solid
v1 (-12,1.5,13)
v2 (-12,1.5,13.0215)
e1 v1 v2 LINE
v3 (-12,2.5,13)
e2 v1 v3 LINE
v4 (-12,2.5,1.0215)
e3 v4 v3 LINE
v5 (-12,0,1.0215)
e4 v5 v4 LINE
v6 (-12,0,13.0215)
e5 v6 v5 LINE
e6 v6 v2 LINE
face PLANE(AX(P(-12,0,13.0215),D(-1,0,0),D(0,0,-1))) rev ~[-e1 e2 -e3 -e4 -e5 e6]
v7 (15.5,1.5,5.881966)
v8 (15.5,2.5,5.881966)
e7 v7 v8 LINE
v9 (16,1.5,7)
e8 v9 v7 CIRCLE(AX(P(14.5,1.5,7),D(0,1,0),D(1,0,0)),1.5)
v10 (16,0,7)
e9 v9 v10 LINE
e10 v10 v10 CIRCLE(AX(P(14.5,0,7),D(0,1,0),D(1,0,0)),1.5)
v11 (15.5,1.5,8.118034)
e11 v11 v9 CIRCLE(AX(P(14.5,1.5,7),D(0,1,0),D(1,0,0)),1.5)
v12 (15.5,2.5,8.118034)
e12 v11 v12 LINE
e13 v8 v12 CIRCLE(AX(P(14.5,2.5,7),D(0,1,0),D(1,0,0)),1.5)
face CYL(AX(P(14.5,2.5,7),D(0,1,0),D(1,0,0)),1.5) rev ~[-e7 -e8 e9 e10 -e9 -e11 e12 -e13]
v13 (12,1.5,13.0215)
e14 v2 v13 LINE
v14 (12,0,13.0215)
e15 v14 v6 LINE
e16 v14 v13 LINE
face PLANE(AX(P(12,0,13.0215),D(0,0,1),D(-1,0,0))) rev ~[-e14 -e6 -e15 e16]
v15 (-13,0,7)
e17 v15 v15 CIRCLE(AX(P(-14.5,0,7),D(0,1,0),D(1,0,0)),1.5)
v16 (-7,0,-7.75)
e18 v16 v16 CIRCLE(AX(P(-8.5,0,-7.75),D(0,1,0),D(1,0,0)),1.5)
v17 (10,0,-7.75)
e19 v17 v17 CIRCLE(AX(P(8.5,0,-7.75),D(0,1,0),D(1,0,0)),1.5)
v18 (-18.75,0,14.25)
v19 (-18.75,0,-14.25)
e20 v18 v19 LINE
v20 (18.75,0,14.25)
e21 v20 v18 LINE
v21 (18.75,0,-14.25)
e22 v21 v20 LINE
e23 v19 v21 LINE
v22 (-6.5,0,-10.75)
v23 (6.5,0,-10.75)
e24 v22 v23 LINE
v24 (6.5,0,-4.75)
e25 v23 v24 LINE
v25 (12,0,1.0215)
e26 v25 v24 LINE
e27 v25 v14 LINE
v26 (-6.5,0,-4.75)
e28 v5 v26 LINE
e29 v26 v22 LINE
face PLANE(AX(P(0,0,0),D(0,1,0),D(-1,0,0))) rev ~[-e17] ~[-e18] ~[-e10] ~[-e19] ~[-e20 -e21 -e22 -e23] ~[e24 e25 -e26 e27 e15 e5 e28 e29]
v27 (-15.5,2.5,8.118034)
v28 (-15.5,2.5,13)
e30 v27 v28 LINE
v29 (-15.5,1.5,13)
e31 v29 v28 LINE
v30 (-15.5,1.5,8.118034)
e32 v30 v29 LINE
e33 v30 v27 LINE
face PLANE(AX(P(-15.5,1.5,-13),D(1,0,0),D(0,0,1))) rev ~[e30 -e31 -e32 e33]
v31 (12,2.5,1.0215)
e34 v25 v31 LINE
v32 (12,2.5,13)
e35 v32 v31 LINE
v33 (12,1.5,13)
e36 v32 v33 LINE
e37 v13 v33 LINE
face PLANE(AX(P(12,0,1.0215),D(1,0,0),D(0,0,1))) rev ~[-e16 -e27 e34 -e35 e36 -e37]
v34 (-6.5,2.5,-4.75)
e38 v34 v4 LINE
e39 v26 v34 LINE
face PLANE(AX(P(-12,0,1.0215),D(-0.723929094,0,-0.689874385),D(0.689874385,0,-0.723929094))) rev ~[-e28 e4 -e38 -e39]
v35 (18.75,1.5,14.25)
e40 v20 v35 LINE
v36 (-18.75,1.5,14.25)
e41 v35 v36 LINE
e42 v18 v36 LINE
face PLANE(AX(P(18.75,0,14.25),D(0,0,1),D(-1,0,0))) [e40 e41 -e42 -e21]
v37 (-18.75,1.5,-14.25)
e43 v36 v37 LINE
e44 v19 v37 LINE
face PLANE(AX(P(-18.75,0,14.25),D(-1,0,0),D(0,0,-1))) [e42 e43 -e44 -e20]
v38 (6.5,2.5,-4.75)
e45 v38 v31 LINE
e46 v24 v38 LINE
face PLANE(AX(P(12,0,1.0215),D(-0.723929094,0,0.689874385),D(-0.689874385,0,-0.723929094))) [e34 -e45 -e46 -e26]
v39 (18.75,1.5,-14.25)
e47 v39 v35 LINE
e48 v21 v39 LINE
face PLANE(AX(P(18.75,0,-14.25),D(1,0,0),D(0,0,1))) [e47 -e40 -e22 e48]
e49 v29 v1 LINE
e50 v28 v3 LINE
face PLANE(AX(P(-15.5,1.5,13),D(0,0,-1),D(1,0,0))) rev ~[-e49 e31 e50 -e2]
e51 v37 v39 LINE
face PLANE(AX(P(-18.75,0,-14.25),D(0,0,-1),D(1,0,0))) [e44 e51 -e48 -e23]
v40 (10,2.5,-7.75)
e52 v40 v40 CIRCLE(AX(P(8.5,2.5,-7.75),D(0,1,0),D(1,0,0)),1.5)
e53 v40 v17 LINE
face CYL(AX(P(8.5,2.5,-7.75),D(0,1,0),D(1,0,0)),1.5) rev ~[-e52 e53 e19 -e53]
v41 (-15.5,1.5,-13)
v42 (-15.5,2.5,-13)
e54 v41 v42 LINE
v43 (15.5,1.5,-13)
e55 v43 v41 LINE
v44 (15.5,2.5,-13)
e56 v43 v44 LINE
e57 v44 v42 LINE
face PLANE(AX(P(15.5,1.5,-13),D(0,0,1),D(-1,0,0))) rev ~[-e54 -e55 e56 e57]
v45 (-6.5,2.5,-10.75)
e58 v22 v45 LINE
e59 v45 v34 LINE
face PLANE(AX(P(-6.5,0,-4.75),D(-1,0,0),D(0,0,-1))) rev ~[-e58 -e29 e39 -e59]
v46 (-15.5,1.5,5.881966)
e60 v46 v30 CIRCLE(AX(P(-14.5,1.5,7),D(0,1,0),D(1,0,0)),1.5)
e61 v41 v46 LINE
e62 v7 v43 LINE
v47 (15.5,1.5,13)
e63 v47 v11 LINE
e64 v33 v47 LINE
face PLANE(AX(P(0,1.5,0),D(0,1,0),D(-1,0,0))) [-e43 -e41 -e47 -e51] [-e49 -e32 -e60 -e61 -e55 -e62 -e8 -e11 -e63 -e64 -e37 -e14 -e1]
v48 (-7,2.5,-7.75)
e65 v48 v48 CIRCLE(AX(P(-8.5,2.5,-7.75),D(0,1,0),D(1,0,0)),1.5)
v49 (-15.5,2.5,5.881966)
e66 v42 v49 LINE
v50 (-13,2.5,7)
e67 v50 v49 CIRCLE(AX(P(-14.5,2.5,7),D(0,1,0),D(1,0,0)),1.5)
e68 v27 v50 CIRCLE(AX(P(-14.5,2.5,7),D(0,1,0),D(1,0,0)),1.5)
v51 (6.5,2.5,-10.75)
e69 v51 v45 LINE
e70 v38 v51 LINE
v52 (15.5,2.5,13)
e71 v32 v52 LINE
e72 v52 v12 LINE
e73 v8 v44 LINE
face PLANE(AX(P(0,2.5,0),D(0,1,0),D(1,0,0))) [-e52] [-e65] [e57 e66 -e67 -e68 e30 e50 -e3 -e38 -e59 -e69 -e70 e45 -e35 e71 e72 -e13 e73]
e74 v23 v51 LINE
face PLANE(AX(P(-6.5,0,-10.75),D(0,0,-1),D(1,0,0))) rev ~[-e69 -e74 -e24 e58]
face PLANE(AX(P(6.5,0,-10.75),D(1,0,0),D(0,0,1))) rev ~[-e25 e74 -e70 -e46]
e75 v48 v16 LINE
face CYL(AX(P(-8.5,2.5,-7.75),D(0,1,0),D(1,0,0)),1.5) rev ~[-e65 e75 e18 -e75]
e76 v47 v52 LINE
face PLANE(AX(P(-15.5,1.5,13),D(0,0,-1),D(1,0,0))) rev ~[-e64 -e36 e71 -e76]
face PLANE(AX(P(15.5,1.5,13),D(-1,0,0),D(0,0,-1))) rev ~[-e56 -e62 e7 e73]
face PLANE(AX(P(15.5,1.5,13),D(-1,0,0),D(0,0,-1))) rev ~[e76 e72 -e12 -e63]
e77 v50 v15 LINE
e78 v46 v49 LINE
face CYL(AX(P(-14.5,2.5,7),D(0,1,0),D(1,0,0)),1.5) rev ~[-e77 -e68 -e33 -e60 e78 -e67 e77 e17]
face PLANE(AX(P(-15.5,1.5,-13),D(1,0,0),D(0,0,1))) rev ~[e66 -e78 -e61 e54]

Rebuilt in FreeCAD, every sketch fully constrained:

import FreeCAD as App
import Part
import Sketcher

V = App.Vector
Q = App.Units.Quantity

doc = App.newDocument("Part")
body = doc.addObject("PartDesign::Body", "Body")

# Sketch on XZ plane
sketch1 = doc.addObject("Sketcher::SketchObject", "Sketch")
body.addObject(sketch1)
sketch1.AttachmentSupport = (doc.XZ_Plane, [""])
sketch1.MapMode = "FlatFace"
sketch1.addGeometry(Part.LineSegment(V(19, -14, 0), V(-19, -14, 0)), False)
sketch1.addGeometry(Part.LineSegment(V(-19, -14, 0), V(-19, 14, 0)), False)
sketch1.addGeometry(Part.LineSegment(V(-19, 14, 0), V(19, 14, 0)), False)
sketch1.addGeometry(Part.LineSegment(V(19, 14, 0), V(19, -14, 0)), False)
sketch1.addConstraint(Sketcher.Constraint("Coincident", 0, 2, 1, 1))
sketch1.addConstraint(Sketcher.Constraint("Coincident", 1, 2, 2, 1))
sketch1.addConstraint(Sketcher.Constraint("Coincident", 2, 2, 3, 1))
sketch1.addConstraint(Sketcher.Constraint("Coincident", 3, 2, 0, 1))
sketch1.addConstraint(Sketcher.Constraint("Horizontal", 0))
sketch1.addConstraint(Sketcher.Constraint("Vertical", 1))
sketch1.addConstraint(Sketcher.Constraint("Horizontal", 2))
sketch1.addConstraint(Sketcher.Constraint("Vertical", 3))
sketch1.addConstraint(Sketcher.Constraint("Symmetric", 0, 2, 2, 2, -1, 1))
sketch1.addConstraint(Sketcher.Constraint("DistanceX", 0, 2, 0, 1, Q("37.5 mm")))
sketch1.addConstraint(Sketcher.Constraint("DistanceY", 1, 1, 1, 2, Q("28.5 mm")))
pad1 = doc.addObject("PartDesign::Pad", "Pad")
body.addObject(pad1)
pad1.Profile = sketch1
pad1.Length = 1.5
pad1.Reversed = True

# Sketch on XZ plane
sketch2 = doc.addObject("Sketcher::SketchObject", "Sketch001")
body.addObject(sketch2)
sketch2.AttachmentSupport = (doc.XZ_Plane, [""])
sketch2.MapMode = "FlatFace"
sketch2.AttachmentOffset = App.Placement(V(0, 0, -1.5), App.Rotation())
sketch2.addGeometry(Part.LineSegment(V(16, 13, 0), V(16, -13, 0)), False)
sketch2.addGeometry(Part.LineSegment(V(16, -13, 0), V(-16, -13, 0)), False)
sketch2.addGeometry(Part.LineSegment(V(-16, -13, 0), V(-16, 13, 0)), False)
sketch2.addGeometry(Part.LineSegment(V(-16, 13, 0), V(16, 13, 0)), False)
sketch2.addConstraint(Sketcher.Constraint("Coincident", 0, 2, 1, 1))
sketch2.addConstraint(Sketcher.Constraint("Coincident", 1, 2, 2, 1))
sketch2.addConstraint(Sketcher.Constraint("Coincident", 2, 2, 3, 1))
sketch2.addConstraint(Sketcher.Constraint("Coincident", 3, 2, 0, 1))
sketch2.addConstraint(Sketcher.Constraint("Vertical", 0))
sketch2.addConstraint(Sketcher.Constraint("Horizontal", 1))
sketch2.addConstraint(Sketcher.Constraint("Vertical", 2))
sketch2.addConstraint(Sketcher.Constraint("Horizontal", 3))
sketch2.addConstraint(Sketcher.Constraint("Symmetric", 0, 2, 2, 2, -1, 1))
sketch2.addConstraint(Sketcher.Constraint("DistanceX", 1, 2, 1, 1, Q("31 mm")))
sketch2.addConstraint(Sketcher.Constraint("DistanceY", 0, 2, 0, 1, Q("26 mm")))
pad2 = doc.addObject("PartDesign::Pad", "Pad001")
body.addObject(pad2)
pad2.Profile = sketch2
pad2.Length = 1
pad2.Reversed = True

# Sketch on XZ plane
sketch3 = doc.addObject("Sketcher::SketchObject", "Sketch002")
body.addObject(sketch3)
sketch3.AttachmentSupport = (doc.XZ_Plane, [""])
sketch3.MapMode = "FlatFace"
sketch3.AttachmentOffset = App.Placement(V(0, 0, -2.5), App.Rotation())
sketch3.addGeometry(Part.Circle(V(-14.5, 7, 0), V(0, 0, 1), 1.5), False)
sketch3.addGeometry(Part.Circle(V(14.5, 7, 0), V(0, 0, 1), 1.5), False)
sketch3.addGeometry(Part.Circle(V(-8.5, -7.8, 0), V(0, 0, 1), 1.5), False)
sketch3.addGeometry(Part.Circle(V(8.5, -7.8, 0), V(0, 0, 1), 1.5), False)
sketch3.addGeometry(Part.LineSegment(V(-8, 11.5, 0), V(8, 11.5, 0)), False)
sketch3.addGeometry(Part.LineSegment(V(8, 11.5, 0), V(8, 2.5, 0)), False)
sketch3.addGeometry(Part.LineSegment(V(8, 2.5, 0), V(-8, 2.5, 0)), False)
sketch3.addGeometry(Part.LineSegment(V(-8, 2.5, 0), V(-8, 11.5, 0)), False)
sketch3.addGeometry(Part.LineSegment(V(-4.5, -6, 0), V(4.5, -6, 0)), False)
sketch3.addGeometry(Part.LineSegment(V(4.5, -6, 0), V(4.5, -9.5, 0)), False)
sketch3.addGeometry(Part.LineSegment(V(4.5, -9.5, 0), V(-4.5, -9.5, 0)), False)
sketch3.addGeometry(Part.LineSegment(V(-4.5, -9.5, 0), V(-4.5, -6, 0)), False)
sketch3.addConstraint(Sketcher.Constraint("Coincident", 4, 2, 5, 1))
sketch3.addConstraint(Sketcher.Constraint("Coincident", 5, 2, 6, 1))
sketch3.addConstraint(Sketcher.Constraint("Coincident", 6, 2, 7, 1))
sketch3.addConstraint(Sketcher.Constraint("Coincident", 7, 2, 4, 1))
sketch3.addConstraint(Sketcher.Constraint("Coincident", 8, 2, 9, 1))
sketch3.addConstraint(Sketcher.Constraint("Coincident", 9, 2, 10, 1))
sketch3.addConstraint(Sketcher.Constraint("Coincident", 10, 2, 11, 1))
sketch3.addConstraint(Sketcher.Constraint("Coincident", 11, 2, 8, 1))
sketch3.addConstraint(Sketcher.Constraint("Horizontal", 4))
sketch3.addConstraint(Sketcher.Constraint("Vertical", 5))
sketch3.addConstraint(Sketcher.Constraint("Horizontal", 6))
sketch3.addConstraint(Sketcher.Constraint("Vertical", 7))
sketch3.addConstraint(Sketcher.Constraint("Horizontal", 8))
sketch3.addConstraint(Sketcher.Constraint("Vertical", 9))
sketch3.addConstraint(Sketcher.Constraint("Horizontal", 10))
sketch3.addConstraint(Sketcher.Constraint("Vertical", 11))
sketch3.addConstraint(Sketcher.Constraint("Equal", 0, 1))
sketch3.addConstraint(Sketcher.Constraint("Equal", 1, 2))
sketch3.addConstraint(Sketcher.Constraint("Equal", 2, 3))
sketch3.addConstraint(Sketcher.Constraint("Symmetric", 0, 3, 1, 3, -2))
sketch3.addConstraint(Sketcher.Constraint("Symmetric", 2, 3, 3, 3, -2))
sketch3.addConstraint(Sketcher.Constraint("Equal", 10, 5))
sketch3.addConstraint(Sketcher.Constraint("Diameter", 0, Q("3 mm")))
sketch3.addConstraint(Sketcher.Constraint("DistanceX", 4, 1, 4, 2, Q("16 mm")))
sketch3.addConstraint(Sketcher.Constraint("DistanceX", 8, 1, 8, 2, Q("9 mm")))
sketch3.addConstraint(Sketcher.Constraint("DistanceY", 9, 2, 9, 1, Q("3.5 mm")))
sketch3.addConstraint(Sketcher.Constraint("DistanceY", 8, 2, -1, 1, Q("6 mm")))
sketch3.addConstraint(Sketcher.Constraint("DistanceX", 0, 3, 2, 3, Q("6 mm")))
sketch3.addConstraint(Sketcher.Constraint("DistanceX", 0, 3, -1, 1, Q("14.5 mm")))
sketch3.addConstraint(Sketcher.Constraint("DistanceX", 8, 2, 5, 2, Q("3.5 mm")))
sketch3.addConstraint(Sketcher.Constraint("DistanceY", 8, 2, 5, 2, Q("8.5 mm")))
sketch3.addConstraint(Sketcher.Constraint("DistanceY", -1, 1, 0, 3, Q("7 mm")))
sketch3.addConstraint(Sketcher.Constraint("DistanceX", -1, 1, 4, 2, Q("8 mm")))
sketch3.addConstraint(Sketcher.Constraint("DistanceY", 2, 3, -1, 1, Q("7.75 mm")))
pocket1 = doc.addObject("PartDesign::Pocket", "Pocket")
body.addObject(pocket1)
pocket1.Profile = sketch3
pocket1.Length = 2.5
pocket1.Reversed = True

# Sketch on XZ plane
sketch4 = doc.addObject("Sketcher::SketchObject", "Sketch003")
body.addObject(sketch4)
sketch4.AttachmentSupport = (doc.XZ_Plane, [""])
sketch4.MapMode = "FlatFace"
sketch4.addGeometry(Part.LineSegment(V(12, 1, 0), V(12, 13, 0)), False)
sketch4.addGeometry(Part.LineSegment(V(12, 13, 0), V(-12, 13, 0)), False)
sketch4.addGeometry(Part.LineSegment(V(-12, 13, 0), V(-12, 1, 0)), False)
sketch4.addGeometry(Part.LineSegment(V(-12, 1, 0), V(-6, -5, 0)), False)
sketch4.addGeometry(Part.LineSegment(V(-6, -5, 0), V(-6, -11, 0)), False)
sketch4.addGeometry(Part.LineSegment(V(-6, -11, 0), V(6, -11, 0)), False)
sketch4.addGeometry(Part.LineSegment(V(6, -11, 0), V(6, -5, 0)), False)
sketch4.addGeometry(Part.LineSegment(V(6, -5, 0), V(12, 1, 0)), False)
sketch4.addConstraint(Sketcher.Constraint("Coincident", 0, 2, 1, 1))
sketch4.addConstraint(Sketcher.Constraint("Coincident", 1, 2, 2, 1))
sketch4.addConstraint(Sketcher.Constraint("Coincident", 2, 2, 3, 1))
sketch4.addConstraint(Sketcher.Constraint("Coincident", 3, 2, 4, 1))
sketch4.addConstraint(Sketcher.Constraint("Coincident", 4, 2, 5, 1))
sketch4.addConstraint(Sketcher.Constraint("Coincident", 5, 2, 6, 1))
sketch4.addConstraint(Sketcher.Constraint("Coincident", 6, 2, 7, 1))
sketch4.addConstraint(Sketcher.Constraint("Coincident", 7, 2, 0, 1))
sketch4.addConstraint(Sketcher.Constraint("Vertical", 0))
sketch4.addConstraint(Sketcher.Constraint("Horizontal", 1))
sketch4.addConstraint(Sketcher.Constraint("Vertical", 2))
sketch4.addConstraint(Sketcher.Constraint("Vertical", 4))
sketch4.addConstraint(Sketcher.Constraint("Horizontal", 5))
sketch4.addConstraint(Sketcher.Constraint("Vertical", 6))
sketch4.addConstraint(Sketcher.Constraint("Symmetric", 3, 2, 6, 2, -2))
sketch4.addConstraint(Sketcher.Constraint("Symmetric", 2, 2, 7, 2, -2))
sketch4.addConstraint(Sketcher.Constraint("DistanceX", 1, 2, 1, 1, Q("24 mm")))
sketch4.addConstraint(Sketcher.Constraint("DistanceX", 5, 1, 5, 2, Q("13 mm")))
sketch4.addConstraint(Sketcher.Constraint("DistanceY", 0, 1, 0, 2, Q("12 mm")))
sketch4.addConstraint(Sketcher.Constraint("DistanceY", 4, 2, 4, 1, Q("6 mm")))
sketch4.addConstraint(Sketcher.Constraint("Angle", 3, Q("-46.3798 deg")))
sketch4.addConstraint(Sketcher.Constraint("DistanceY", 3, 2, -1, 1, Q("4.75 mm")))
pocket2 = doc.addObject("PartDesign::Pocket", "Pocket001")
body.addObject(pocket2)
pocket2.Profile = sketch4
pocket2.Length = 10

doc.recompute()
